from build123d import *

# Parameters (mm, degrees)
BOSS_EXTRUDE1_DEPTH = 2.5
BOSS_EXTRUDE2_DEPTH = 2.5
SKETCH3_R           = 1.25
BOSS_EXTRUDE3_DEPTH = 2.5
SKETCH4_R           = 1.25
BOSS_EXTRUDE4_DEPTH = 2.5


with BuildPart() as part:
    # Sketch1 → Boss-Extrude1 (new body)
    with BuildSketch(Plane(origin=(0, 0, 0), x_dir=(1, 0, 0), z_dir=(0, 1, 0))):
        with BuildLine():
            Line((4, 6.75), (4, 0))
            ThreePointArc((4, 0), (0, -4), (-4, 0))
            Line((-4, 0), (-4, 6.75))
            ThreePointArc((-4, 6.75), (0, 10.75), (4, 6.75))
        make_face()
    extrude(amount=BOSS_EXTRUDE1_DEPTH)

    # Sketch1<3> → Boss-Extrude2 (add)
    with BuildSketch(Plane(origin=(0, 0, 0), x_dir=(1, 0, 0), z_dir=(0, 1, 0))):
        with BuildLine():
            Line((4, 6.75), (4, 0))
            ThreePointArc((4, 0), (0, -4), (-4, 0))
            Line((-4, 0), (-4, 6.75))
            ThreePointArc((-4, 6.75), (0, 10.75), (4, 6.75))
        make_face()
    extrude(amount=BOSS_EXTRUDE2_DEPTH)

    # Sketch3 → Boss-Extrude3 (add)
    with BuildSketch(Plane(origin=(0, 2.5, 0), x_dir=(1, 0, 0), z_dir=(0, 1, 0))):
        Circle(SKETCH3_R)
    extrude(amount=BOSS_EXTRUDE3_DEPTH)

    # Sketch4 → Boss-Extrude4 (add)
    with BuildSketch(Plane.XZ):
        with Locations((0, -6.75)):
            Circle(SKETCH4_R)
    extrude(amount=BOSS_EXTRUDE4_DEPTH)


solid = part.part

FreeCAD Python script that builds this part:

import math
import FreeCAD as App
import Part
import Sketcher
from FreeCAD import Vector

doc = App.newDocument("Part")
body = doc.addObject("PartDesign::Body", "Body")

# Sketch on XZ plane
sketch1 = body.newObject("Sketcher::SketchObject", "Sketch")
sketch1.AttachmentSupport = (doc.getObject("XZ_Plane"), [""])
sketch1.MapMode = "FlatFace"
sketch1.addGeometry(Part.LineSegment(Vector(4, 0, 0), Vector(4, -6.75, 0)), False)
sketch1.addGeometry(Part.ArcOfCircle(Part.Circle(Vector(0, -6.75, 0), Vector(0, 0, 1), 4), math.radians(180), math.radians(360)), False)
sketch1.addGeometry(Part.LineSegment(Vector(-4, -6.75, 0), Vector(-4, 0, 0)), False)
sketch1.addGeometry(Part.ArcOfCircle(Part.Circle(Vector(0, 0, 0), Vector(0, 0, 1), 4), math.radians(0), math.radians(180)), False)
sketch1.addConstraint(Sketcher.Constraint("Tangent", 0, 2, 1, 2))
sketch1.addConstraint(Sketcher.Constraint("Tangent", 1, 1, 2, 1))
sketch1.addConstraint(Sketcher.Constraint("Tangent", 2, 2, 3, 2))
sketch1.addConstraint(Sketcher.Constraint("Tangent", 3, 1, 0, 1))
sketch1.addConstraint(Sketcher.Constraint("Vertical", 0))
sketch1.addConstraint(Sketcher.Constraint("Vertical", 2))
sketch1.addConstraint(Sketcher.Constraint("Coincident", 3, 3, -1, 1))
sketch1.addConstraint(Sketcher.Constraint("Radius", 1, 4.0))
sketch1.addConstraint(Sketcher.Constraint("DistanceY", 0, 2, 0, 1, 6.75))
pad1 = body.newObject("PartDesign::Pad", "Pad")
pad1.Profile = sketch1
pad1.Length = 2.5
pad1.Reversed = True

# Sketch on XZ plane
sketch2 = body.newObject("Sketcher::SketchObject", "Sketch001")
sketch2.AttachmentSupport = (doc.getObject("XZ_Plane"), [""])
sketch2.MapMode = "FlatFace"
sketch2.addGeometry(Part.LineSegment(Vector(4, 0, 0), Vector(4, -6.75, 0)), False)
sketch2.addGeometry(Part.ArcOfCircle(Part.Circle(Vector(0, -6.75, 0), Vector(0, 0, 1), 4), math.radians(180), math.radians(360)), False)
sketch2.addGeometry(Part.LineSegment(Vector(-4, -6.75, 0), Vector(-4, 0, 0)), False)
sketch2.addGeometry(Part.ArcOfCircle(Part.Circle(Vector(0, 0, 0), Vector(0, 0, 1), 4), math.radians(0), math.radians(180)), False)
sketch2.addConstraint(Sketcher.Constraint("Tangent", 0, 2, 1, 2))
sketch2.addConstraint(Sketcher.Constraint("Tangent", 1, 1, 2, 1))
sketch2.addConstraint(Sketcher.Constraint("Tangent", 2, 2, 3, 2))
sketch2.addConstraint(Sketcher.Constraint("Tangent", 3, 1, 0, 1))
sketch2.addConstraint(Sketcher.Constraint("Vertical", 0))
sketch2.addConstraint(Sketcher.Constraint("Vertical", 2))
sketch2.addConstraint(Sketcher.Constraint("Coincident", 3, 3, -1, 1))
sketch2.addConstraint(Sketcher.Constraint("Radius", 1, 4.0))
sketch2.addConstraint(Sketcher.Constraint("DistanceY", 0, 2, 0, 1, 6.75))
pad2 = body.newObject("PartDesign::Pad", "Pad001")
pad2.Profile = sketch2
pad2.Length = 2.5
pad2.Reversed = True

# Sketch on XZ plane
sketch3 = body.newObject("Sketcher::SketchObject", "Sketch002")
sketch3.AttachmentSupport = (doc.getObject("XZ_Plane"), [""])
sketch3.MapMode = "FlatFace"
sketch3.AttachmentOffset = App.Placement(Vector(0, 0, -2.5), App.Rotation())
sketch3.addGeometry(Part.Circle(Vector(0, 0, 0), Vector(0, 0, 1), 1.25), False)
sketch3.addConstraint(Sketcher.Constraint("Coincident", 0, 3, -1, 1))
sketch3.addConstraint(Sketcher.Constraint("Diameter", 0, 2.5))
pad3 = body.newObject("PartDesign::Pad", "Pad002")
pad3.Profile = sketch3
pad3.Length = 2.5
pad3.Reversed = True

# Sketch on XZ plane
sketch4 = body.newObject("Sketcher::SketchObject", "Sketch003")
sketch4.AttachmentSupport = (doc.getObject("XZ_Plane"), [""])
sketch4.MapMode = "FlatFace"
sketch4.addGeometry(Part.Circle(Vector(0, -6.75, 0), Vector(0, 0, 1), 1.25), False)
sketch4.addConstraint(Sketcher.Constraint("PointOnObject", 0, 3, -2))
sketch4.addConstraint(Sketcher.Constraint("Diameter", 0, 2.5))
sketch4.addConstraint(Sketcher.Constraint("DistanceY", 0, 3, -1, 1, 6.75))
pad4 = body.newObject("PartDesign::Pad", "Pad003")
pad4.Profile = sketch4
pad4.Length = 2.5

doc.recompute()
